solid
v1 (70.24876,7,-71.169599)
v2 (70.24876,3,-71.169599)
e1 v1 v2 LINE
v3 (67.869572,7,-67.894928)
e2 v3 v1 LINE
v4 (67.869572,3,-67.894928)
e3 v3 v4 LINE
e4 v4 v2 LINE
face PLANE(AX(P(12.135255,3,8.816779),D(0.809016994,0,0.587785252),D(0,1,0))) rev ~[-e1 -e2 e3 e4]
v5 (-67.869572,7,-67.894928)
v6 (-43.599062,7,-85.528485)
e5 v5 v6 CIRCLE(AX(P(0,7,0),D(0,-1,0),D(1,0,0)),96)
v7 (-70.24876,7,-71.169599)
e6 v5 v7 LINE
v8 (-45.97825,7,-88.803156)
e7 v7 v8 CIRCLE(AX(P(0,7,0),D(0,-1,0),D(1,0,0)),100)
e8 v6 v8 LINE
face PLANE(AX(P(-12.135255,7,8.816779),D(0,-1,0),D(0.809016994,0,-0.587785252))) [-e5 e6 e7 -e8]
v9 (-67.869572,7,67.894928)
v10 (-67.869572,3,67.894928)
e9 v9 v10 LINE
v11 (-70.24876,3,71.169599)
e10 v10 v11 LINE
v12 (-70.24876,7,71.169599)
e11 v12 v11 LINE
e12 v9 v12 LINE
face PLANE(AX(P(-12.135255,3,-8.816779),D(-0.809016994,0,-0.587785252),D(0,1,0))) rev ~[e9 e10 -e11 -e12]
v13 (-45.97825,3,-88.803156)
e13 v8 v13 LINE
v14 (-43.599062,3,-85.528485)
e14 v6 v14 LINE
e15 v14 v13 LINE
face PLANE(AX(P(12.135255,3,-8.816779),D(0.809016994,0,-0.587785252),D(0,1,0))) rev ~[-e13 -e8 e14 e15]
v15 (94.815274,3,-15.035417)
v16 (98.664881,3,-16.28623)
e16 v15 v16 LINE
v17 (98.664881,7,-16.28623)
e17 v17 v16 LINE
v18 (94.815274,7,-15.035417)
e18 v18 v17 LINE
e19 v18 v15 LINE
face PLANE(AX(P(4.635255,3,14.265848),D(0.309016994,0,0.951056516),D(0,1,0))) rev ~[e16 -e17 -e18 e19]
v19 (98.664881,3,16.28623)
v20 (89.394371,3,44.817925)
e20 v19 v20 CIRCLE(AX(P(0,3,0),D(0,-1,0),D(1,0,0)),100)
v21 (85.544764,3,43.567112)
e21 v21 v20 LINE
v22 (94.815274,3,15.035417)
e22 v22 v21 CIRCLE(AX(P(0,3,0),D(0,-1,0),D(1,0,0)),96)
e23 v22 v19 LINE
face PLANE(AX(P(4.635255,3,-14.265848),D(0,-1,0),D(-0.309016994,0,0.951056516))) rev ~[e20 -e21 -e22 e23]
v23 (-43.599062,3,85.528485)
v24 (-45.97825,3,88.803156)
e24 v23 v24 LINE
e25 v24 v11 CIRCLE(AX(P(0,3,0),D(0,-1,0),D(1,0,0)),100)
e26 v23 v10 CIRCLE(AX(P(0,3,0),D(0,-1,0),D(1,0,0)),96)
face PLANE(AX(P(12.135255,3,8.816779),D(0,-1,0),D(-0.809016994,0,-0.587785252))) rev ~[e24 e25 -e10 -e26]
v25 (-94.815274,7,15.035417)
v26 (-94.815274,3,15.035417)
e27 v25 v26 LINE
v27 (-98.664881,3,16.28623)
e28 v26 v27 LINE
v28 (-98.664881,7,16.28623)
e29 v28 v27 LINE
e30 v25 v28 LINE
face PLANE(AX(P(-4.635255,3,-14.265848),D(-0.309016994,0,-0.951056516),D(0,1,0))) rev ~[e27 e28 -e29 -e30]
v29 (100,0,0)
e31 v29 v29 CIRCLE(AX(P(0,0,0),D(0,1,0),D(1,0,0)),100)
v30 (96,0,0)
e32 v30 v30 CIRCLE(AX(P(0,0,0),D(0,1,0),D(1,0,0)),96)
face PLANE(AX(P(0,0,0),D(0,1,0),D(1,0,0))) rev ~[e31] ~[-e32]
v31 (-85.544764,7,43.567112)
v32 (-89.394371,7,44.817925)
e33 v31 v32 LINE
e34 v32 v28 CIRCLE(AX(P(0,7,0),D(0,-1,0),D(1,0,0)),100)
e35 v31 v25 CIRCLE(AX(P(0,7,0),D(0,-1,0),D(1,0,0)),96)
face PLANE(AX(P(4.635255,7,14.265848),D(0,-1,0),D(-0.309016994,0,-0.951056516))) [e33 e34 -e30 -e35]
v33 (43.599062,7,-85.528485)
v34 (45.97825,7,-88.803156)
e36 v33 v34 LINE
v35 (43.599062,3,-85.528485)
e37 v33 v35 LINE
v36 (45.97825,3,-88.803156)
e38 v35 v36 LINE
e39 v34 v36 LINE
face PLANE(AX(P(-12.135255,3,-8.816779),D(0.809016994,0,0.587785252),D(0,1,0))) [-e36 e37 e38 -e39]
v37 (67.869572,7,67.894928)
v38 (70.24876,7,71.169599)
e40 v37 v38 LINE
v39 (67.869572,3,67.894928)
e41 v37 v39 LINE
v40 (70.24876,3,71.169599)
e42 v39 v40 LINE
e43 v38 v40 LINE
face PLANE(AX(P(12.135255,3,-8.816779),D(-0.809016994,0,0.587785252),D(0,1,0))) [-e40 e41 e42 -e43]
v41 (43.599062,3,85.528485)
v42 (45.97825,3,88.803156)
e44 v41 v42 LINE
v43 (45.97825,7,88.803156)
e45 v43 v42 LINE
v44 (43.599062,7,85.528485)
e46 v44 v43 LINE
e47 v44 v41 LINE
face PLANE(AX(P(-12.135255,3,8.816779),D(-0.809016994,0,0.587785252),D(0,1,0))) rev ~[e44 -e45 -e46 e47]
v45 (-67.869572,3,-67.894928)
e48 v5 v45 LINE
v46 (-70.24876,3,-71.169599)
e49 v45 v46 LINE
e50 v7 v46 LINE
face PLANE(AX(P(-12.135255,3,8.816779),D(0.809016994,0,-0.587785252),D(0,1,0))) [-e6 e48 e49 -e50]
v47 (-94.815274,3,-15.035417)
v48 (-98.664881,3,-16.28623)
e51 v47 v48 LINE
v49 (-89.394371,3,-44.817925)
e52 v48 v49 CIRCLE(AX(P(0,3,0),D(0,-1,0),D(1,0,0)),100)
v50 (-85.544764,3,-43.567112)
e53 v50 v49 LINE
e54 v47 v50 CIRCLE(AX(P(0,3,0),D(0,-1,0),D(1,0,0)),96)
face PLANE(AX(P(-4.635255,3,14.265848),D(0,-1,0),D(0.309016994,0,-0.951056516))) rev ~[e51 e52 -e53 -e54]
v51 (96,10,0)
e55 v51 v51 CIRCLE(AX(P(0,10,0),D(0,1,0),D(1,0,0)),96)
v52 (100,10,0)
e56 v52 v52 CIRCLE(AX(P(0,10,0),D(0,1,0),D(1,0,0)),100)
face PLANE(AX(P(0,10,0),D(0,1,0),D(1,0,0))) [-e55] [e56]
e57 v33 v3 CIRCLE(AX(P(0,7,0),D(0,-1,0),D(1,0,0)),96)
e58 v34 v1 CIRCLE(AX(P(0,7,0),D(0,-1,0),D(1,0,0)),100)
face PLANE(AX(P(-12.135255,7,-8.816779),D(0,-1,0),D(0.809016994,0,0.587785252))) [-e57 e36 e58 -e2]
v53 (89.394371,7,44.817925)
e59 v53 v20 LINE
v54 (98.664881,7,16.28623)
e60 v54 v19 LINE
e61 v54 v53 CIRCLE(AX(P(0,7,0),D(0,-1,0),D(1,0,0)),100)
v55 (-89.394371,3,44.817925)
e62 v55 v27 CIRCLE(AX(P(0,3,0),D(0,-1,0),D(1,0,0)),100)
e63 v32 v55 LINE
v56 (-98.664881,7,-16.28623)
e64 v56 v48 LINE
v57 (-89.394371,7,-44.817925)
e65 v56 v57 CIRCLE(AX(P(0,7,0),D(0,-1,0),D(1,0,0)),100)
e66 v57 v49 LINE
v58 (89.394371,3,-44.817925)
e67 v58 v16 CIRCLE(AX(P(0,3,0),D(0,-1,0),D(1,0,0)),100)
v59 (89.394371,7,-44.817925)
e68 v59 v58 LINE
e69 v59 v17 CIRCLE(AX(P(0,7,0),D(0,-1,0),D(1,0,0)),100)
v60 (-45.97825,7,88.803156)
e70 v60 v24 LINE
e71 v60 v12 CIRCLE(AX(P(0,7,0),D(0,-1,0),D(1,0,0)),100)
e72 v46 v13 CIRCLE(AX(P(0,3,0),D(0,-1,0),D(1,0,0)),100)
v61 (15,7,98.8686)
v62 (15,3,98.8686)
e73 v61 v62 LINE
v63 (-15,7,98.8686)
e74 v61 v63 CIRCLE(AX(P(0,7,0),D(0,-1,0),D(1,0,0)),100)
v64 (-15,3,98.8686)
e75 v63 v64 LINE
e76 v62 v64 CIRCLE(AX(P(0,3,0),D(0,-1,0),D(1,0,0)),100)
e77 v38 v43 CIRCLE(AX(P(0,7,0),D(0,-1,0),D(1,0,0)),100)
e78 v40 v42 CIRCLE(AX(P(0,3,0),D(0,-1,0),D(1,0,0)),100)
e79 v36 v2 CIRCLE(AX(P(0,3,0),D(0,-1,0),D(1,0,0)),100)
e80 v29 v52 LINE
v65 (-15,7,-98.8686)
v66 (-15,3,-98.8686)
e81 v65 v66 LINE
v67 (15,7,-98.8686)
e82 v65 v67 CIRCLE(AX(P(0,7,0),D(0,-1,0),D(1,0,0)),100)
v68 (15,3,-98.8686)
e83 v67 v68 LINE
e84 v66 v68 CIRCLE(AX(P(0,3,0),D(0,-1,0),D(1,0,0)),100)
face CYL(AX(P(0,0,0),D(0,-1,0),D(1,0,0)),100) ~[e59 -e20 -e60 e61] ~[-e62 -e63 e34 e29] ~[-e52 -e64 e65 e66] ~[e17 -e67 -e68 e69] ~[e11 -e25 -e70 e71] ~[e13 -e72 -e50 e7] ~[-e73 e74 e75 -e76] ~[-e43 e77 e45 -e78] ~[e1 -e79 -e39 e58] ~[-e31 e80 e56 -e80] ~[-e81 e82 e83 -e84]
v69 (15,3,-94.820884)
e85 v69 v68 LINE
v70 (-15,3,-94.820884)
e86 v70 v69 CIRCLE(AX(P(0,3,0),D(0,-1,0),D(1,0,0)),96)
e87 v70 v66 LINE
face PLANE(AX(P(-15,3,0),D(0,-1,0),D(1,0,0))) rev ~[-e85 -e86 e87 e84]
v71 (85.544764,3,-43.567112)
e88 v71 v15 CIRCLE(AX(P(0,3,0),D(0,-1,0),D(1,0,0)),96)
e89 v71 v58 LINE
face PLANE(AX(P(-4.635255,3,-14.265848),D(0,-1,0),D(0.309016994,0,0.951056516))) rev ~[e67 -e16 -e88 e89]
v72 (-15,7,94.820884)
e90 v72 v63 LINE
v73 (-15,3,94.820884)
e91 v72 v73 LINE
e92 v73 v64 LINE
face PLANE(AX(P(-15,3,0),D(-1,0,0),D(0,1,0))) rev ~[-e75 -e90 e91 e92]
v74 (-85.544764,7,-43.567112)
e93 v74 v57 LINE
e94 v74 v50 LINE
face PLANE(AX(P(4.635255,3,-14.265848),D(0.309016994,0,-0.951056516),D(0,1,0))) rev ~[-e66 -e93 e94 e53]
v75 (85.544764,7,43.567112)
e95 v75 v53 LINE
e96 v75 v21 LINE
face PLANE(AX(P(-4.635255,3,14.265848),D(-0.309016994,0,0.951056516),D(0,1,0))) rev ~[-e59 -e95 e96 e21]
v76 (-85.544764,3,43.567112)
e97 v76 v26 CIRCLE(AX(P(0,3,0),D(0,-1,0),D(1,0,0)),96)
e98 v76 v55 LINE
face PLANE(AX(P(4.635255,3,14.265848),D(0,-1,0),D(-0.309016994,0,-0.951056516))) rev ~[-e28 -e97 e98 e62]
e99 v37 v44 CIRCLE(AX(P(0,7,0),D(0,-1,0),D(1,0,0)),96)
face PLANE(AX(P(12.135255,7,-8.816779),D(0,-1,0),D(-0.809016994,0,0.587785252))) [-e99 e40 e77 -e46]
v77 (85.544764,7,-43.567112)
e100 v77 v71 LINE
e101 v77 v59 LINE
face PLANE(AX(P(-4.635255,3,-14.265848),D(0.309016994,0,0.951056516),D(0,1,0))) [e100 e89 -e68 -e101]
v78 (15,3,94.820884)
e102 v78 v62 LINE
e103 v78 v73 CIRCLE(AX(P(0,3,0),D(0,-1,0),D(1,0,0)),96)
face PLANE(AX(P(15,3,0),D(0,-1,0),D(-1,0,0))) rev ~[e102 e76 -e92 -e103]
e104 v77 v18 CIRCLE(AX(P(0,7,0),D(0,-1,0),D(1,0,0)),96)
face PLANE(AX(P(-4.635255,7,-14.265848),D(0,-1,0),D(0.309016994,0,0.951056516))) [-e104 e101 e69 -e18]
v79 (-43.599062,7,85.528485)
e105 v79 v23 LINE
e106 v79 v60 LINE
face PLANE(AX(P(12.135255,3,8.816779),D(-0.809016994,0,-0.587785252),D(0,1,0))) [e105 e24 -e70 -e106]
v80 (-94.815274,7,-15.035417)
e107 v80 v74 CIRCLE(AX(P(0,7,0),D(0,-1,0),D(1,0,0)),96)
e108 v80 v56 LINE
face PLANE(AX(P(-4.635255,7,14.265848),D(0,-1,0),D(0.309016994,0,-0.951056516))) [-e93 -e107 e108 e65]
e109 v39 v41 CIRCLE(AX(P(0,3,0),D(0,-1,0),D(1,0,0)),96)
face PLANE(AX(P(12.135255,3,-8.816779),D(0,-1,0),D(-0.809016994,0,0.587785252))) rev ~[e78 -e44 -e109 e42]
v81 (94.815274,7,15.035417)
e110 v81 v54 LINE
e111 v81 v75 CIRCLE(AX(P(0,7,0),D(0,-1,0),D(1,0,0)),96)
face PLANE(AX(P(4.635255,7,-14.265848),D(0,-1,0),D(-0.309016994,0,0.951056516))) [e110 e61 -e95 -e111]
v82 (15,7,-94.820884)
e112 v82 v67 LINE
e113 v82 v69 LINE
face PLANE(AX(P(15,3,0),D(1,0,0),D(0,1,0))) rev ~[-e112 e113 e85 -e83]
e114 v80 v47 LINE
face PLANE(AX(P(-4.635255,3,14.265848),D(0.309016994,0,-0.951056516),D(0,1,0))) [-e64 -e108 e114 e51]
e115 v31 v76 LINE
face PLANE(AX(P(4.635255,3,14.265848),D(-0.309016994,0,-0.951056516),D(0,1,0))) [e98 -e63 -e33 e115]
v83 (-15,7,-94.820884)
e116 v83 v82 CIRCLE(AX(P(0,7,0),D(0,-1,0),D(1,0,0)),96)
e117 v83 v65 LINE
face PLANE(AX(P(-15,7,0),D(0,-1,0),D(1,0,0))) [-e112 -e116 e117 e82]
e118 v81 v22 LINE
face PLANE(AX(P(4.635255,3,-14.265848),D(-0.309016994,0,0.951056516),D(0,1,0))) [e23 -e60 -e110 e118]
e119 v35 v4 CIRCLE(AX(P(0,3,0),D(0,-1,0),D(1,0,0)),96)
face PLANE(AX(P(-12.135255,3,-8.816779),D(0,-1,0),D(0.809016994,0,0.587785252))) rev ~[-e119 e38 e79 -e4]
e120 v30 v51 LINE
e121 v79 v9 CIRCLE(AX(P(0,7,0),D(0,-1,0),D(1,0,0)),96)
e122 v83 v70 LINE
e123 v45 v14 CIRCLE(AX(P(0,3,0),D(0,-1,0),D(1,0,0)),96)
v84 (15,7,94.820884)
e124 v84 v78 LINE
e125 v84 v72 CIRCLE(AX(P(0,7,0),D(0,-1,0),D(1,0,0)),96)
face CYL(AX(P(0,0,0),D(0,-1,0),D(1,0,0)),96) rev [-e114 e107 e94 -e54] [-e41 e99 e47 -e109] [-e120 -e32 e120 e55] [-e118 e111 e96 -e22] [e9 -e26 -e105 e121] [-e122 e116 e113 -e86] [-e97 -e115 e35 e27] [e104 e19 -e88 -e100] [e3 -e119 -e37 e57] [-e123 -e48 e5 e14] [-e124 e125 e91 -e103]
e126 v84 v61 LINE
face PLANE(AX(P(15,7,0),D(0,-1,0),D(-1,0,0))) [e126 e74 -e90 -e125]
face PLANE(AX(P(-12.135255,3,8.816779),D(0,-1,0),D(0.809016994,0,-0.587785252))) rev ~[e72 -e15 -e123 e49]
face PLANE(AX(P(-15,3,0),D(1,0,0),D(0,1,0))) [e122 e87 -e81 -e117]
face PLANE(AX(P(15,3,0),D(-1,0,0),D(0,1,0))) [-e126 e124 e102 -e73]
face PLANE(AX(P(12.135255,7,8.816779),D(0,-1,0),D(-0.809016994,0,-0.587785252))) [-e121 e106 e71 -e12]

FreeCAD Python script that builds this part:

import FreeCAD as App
import Part
import Sketcher


def add_polygon(sketch, points):
    """Adds a closed chain of lines whose ends are joined by coincident constraints."""
    first, n = sketch.GeometryCount, len(points)
    for a, b in zip(points, points[1:] + points[:1]):
        sketch.addGeometry(Part.LineSegment(App.Vector(*a, 0), App.Vector(*b, 0)), False)
    for i in range(n):
        sketch.addConstraint(Sketcher.Constraint("Coincident", first + i, 2, first + (i + 1) % n, 1))

doc = App.newDocument("Part")
body = doc.addObject("PartDesign::Body", "Body")

sketch1 = body.newObject("Sketcher::SketchObject", "Sketch")
sketch1.AttachmentSupport = (doc.getObject("XZ_Plane"), [""])
sketch1.MapMode = "FlatFace"
sketch1.addGeometry([
    Part.Circle(App.Vector(0, 0, 0), App.Vector(0, 0, 1), 100),
    Part.Circle(App.Vector(0, 0, 0), App.Vector(0, 0, 1), 96),
], False)
sketch1.addConstraint([
    Sketcher.Constraint("Coincident", 0, 3, -1, 1),
    Sketcher.Constraint("Coincident", 1, 3, -1, 1),
    Sketcher.Constraint("Diameter", 0, 200.0),
    Sketcher.Constraint("Diameter", 1, 192.0),
])
pad1 = body.newObject("PartDesign::Pad", "Pad")
pad1.Profile = sketch1
pad1.Length = 10
pad1.Reversed = True

sketch2 = body.newObject("Sketcher::SketchObject", "Sketch001")
sketch2.AttachmentSupport = (doc.getObject("XY_Plane"), [""])
sketch2.MapMode = "FlatFace"
add_polygon(sketch2, [(-15, 7), (-15, 3), (15, 3), (15, 7)])
sketch2.addConstraint([
    Sketcher.Constraint("Vertical", 0),
    Sketcher.Constraint("Horizontal", 1),
    Sketcher.Constraint("Vertical", 2),
    Sketcher.Constraint("Horizontal", 3),
    Sketcher.Constraint("DistanceX", 1, 1, 1, 2, 30.0),
    Sketcher.Constraint("DistanceY", 0, 2, 0, 1, 4.0),
    Sketcher.Constraint("DistanceX", 0, 2, -1, 1, 15.0),
    Sketcher.Constraint("DistanceY", -1, 1, 0, 2, 3.0),
])
pocket1 = body.newObject("PartDesign::Pocket", "Pocket")
pocket1.Profile = sketch2
pocket1.Type = "ThroughAll"
doc.recompute()

polarpattern = body.newObject("PartDesign::PolarPattern", "PolarPattern")
polarpattern.Originals = [pocket1]
polarpattern.Axis = (doc.getObject("Y_Axis"), [""])
polarpattern.Angle = 360
polarpattern.Occurrences = 10
body.Tip = polarpattern

doc.recompute()
